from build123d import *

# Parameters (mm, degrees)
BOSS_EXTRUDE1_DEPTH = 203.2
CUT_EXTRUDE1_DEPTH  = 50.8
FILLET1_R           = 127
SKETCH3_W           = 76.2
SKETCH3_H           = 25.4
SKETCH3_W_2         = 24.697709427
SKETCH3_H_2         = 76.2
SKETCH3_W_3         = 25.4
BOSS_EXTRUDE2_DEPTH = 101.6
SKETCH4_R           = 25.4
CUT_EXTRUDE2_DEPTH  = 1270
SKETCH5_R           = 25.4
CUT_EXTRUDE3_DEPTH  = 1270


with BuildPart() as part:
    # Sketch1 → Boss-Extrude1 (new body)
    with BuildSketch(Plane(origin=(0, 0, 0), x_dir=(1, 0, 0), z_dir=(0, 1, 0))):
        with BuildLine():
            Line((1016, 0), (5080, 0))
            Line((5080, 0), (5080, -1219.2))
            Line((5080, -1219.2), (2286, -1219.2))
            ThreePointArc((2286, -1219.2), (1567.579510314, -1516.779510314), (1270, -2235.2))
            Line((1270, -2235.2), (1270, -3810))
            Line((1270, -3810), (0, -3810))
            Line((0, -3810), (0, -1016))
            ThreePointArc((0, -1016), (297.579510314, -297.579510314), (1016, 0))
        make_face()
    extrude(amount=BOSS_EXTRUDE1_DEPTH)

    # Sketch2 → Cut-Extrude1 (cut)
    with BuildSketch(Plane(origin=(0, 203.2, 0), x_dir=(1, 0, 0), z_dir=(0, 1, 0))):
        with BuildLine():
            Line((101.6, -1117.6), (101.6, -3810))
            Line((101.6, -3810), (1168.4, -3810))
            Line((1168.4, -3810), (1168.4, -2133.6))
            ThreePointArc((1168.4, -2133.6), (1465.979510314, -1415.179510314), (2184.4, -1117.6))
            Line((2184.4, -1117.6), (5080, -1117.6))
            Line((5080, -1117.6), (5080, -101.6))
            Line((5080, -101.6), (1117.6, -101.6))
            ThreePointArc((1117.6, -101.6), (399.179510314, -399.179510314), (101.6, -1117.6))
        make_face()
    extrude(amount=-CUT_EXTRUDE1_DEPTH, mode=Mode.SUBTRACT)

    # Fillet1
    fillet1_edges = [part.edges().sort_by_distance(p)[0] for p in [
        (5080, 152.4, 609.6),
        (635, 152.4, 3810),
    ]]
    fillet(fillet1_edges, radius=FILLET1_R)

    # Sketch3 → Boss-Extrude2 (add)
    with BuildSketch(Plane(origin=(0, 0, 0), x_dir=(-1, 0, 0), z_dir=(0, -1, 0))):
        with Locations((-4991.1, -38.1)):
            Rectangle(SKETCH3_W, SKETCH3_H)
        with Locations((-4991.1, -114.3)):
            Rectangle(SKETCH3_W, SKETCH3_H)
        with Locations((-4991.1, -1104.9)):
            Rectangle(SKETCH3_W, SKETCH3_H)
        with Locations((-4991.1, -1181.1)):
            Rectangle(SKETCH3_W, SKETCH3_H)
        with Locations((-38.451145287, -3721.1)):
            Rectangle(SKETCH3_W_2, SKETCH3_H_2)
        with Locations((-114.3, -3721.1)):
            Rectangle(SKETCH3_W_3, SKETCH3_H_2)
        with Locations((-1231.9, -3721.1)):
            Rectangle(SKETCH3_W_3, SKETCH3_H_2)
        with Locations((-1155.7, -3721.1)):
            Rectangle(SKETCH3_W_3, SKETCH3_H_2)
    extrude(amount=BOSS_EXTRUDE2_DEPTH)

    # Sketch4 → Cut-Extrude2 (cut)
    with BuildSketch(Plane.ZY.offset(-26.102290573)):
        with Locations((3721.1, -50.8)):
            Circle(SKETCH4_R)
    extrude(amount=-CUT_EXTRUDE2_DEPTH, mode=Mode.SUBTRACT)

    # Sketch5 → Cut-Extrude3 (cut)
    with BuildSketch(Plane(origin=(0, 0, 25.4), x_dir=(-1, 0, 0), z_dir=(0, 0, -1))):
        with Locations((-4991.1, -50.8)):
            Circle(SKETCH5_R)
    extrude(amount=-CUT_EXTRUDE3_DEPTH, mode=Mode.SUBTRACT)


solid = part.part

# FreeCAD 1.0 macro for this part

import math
import FreeCAD as App
import Part
import Sketcher

V = App.Vector
Q = App.Units.Quantity


def edges_at(feature, points):
    """Names of the edges that pass closest to the given points."""
    edges = feature.Shape.Edges
    near = lambda p: min(range(len(edges)), key=lambda i: edges[i].distToShape(Part.Vertex(*p))[0])
    return sorted({f"Edge{near(p) + 1}" for p in points})


def add_polygon(sketch, points):
    """Adds a closed chain of lines whose ends are joined by coincident constraints."""
    first, n = sketch.GeometryCount, len(points)
    for a, b in zip(points, points[1:] + points[:1]):
        sketch.addGeometry(Part.LineSegment(App.Vector(*a, 0), App.Vector(*b, 0)), False)
    for i in range(n):
        sketch.addConstraint(Sketcher.Constraint("Coincident", first + i, 2, first + (i + 1) % n, 1))

doc = App.newDocument("Part")
params = doc.addObject("Spreadsheet::Sheet", "Params")
for row, (alias, value) in enumerate([
    ("sketch1_radius", "40 in"),
    ("sketch1_width", "160 in"),
    ("sketch1_width2", "50 in"),
    ("sketch1_width3", "110 in"),
    ("sketch1_height", "62 in"),
    ("pad1_length", "8 in"),
    ("sketch2_radius", "40 in"),
    ("sketch2_width", "42 in"),
    ("sketch2_width2", "114 in"),
    ("sketch2_width3", "156 in"),
    ("sketch2_height", "106 in"),
    ("pocket1_length", "2 in"),
    ("fillet_radius", "5 in"),
    ("sketch3_width", "3 in"),
    ("sketch3_width2", "1 in"),
    ("pad2_length", "4 in"),
    ("sketch4_diameter", "2 in"),
    ("pocket2_length", "50 in"),
    ("sketch5_diameter", "2 in"),
    ("pocket3_length", "50 in"),
], start=1):
    params.set(f"A{row}", alias)
    params.set(f"B{row}", "=" + value)
    params.setAlias(f"B{row}", alias)

body = doc.addObject("PartDesign::Body", "Body")

sketch1 = body.newObject("Sketcher::SketchObject", "Sketch")
sketch1.AttachmentSupport = (doc.getObject("XZ_Plane"), [""])
sketch1.MapMode = "FlatFace"
sketch1.addGeometry([
    Part.LineSegment(V(5080, 0, 0), V(1016, 0, 0)),
    Part.ArcOfCircle(Part.Circle(V(1016, 1016, 0), V(0, 0, 1), 1016), math.radians(180), math.radians(270)),
    Part.LineSegment(V(0, 1016, 0), V(0, 3810, 0)),
    Part.LineSegment(V(0, 3810, 0), V(1270, 3810, 0)),
    Part.LineSegment(V(1270, 3810, 0), V(1270, 2235.2, 0)),
    Part.ArcOfCircle(Part.Circle(V(2286, 2235.2, 0), V(0, 0, 1), 1016), math.radians(180), math.radians(270)),
    Part.LineSegment(V(2286, 1219.2, 0), V(5080, 1219.2, 0)),
    Part.LineSegment(V(5080, 1219.2, 0), V(5080, 0, 0)),
], False)
sketch1.addConstraint([
    Sketcher.Constraint("Coincident", 0, 2, 1, 2),
    Sketcher.Constraint("Coincident", 1, 1, 2, 1),
    Sketcher.Constraint("Coincident", 2, 2, 3, 1),
    Sketcher.Constraint("Coincident", 3, 2, 4, 1),
    Sketcher.Constraint("Coincident", 4, 2, 5, 1),
    Sketcher.Constraint("Coincident", 5, 2, 6, 1),
    Sketcher.Constraint("Coincident", 6, 2, 7, 1),
    Sketcher.Constraint("Coincident", 7, 2, 0, 1),
    Sketcher.Constraint("Horizontal", 0),
    Sketcher.Constraint("Vertical", 2),
    Sketcher.Constraint("Horizontal", 3),
    Sketcher.Constraint("Vertical", 4),
    Sketcher.Constraint("Horizontal", 6),
    Sketcher.Constraint("Vertical", 7),
    Sketcher.Constraint("Equal", 1, 5),
    Sketcher.Constraint("PointOnObject", 0, 2, -1),
    Sketcher.Constraint("PointOnObject", 1, 1, -2),
    Sketcher.Constraint("Horizontal", 5, 3, 4, 2),
    Sketcher.Constraint("Vertical", 1, 3, 0, 2),
    Sketcher.Constraint("Equal", 6, 2),
    Sketcher.Constraint("Radius", 1, Q("40 in")),
    Sketcher.Constraint("DistanceX", 0, 2, 0, 1, Q("160 in")),
    Sketcher.Constraint("DistanceX", 3, 1, 3, 2, Q("50 in")),
    Sketcher.Constraint("DistanceX", 6, 1, 6, 2, Q("110 in")),
    Sketcher.Constraint("DistanceY", 4, 2, 4, 1, Q("62 in")),
    Sketcher.Constraint("DistanceY", 7, 2, 7, 1, Q("48 in")),
])
sketch1.setExpression("Constraints[20]", "Params.sketch1_radius")
sketch1.setExpression("Constraints[21]", "Params.sketch1_width")
sketch1.setExpression("Constraints[22]", "Params.sketch1_width2")
sketch1.setExpression("Constraints[23]", "Params.sketch1_width3")
sketch1.setExpression("Constraints[24]", "Params.sketch1_height")
pad1 = body.newObject("PartDesign::Pad", "Pad")
pad1.Profile = sketch1
pad1.setExpression("Length", "Params.pad1_length")
pad1.Reversed = True

sketch2 = body.newObject("Sketcher::SketchObject", "Sketch001")
sketch2.AttachmentSupport = (doc.getObject("XZ_Plane"), [""])
sketch2.MapMode = "FlatFace"
sketch2.AttachmentOffset = App.Placement(V(0, 0, -8 * 25.4), App.Rotation())
sketch2.addGeometry([
    Part.LineSegment(V(101.6, 1117.6, 0), V(101.6, 3810, 0)),
    Part.LineSegment(V(101.6, 3810, 0), V(1168.4, 3810, 0)),
    Part.LineSegment(V(1168.4, 3810, 0), V(1168.4, 2133.6, 0)),
    Part.ArcOfCircle(Part.Circle(V(2184.4, 2133.6, 0), V(0, 0, 1), 1016), math.radians(180), math.radians(270)),
    Part.LineSegment(V(2184.4, 1117.6, 0), V(5080, 1117.6, 0)),
    Part.LineSegment(V(5080, 1117.6, 0), V(5080, 101.6, 0)),
    Part.LineSegment(V(5080, 101.6, 0), V(1117.6, 101.6, 0)),
    Part.ArcOfCircle(Part.Circle(V(1117.6, 1117.6, 0), V(0, 0, 1), 1016), math.radians(180), math.radians(270)),
], False)
sketch2.addConstraint([
    Sketcher.Constraint("Coincident", 0, 2, 1, 1),
    Sketcher.Constraint("Coincident", 1, 2, 2, 1),
    Sketcher.Constraint("Coincident", 2, 2, 3, 1),
    Sketcher.Constraint("Coincident", 3, 2, 4, 1),
    Sketcher.Constraint("Coincident", 4, 2, 5, 1),
    Sketcher.Constraint("Coincident", 5, 2, 6, 1),
    Sketcher.Constraint("Coincident", 6, 2, 7, 2),
    Sketcher.Constraint("Coincident", 7, 1, 0, 1),
    Sketcher.Constraint("Vertical", 0),
    Sketcher.Constraint("Horizontal", 1),
    Sketcher.Constraint("Vertical", 2),
    Sketcher.Constraint("Horizontal", 4),
    Sketcher.Constraint("Vertical", 5),
    Sketcher.Constraint("Horizontal", 6),
    Sketcher.Constraint("Equal", 3, 7),
    Sketcher.Constraint("Horizontal", 3, 3, 2, 2),
    Sketcher.Constraint("Horizontal", 7, 3, 3, 2),
    Sketcher.Constraint("Vertical", 7, 3, 6, 2),
    Sketcher.Constraint("Radius", 3, Q("40 in")),
    Sketcher.Constraint("DistanceX", 1, 1, 1, 2, Q("42 in")),
    Sketcher.Constraint("DistanceX", 4, 1, 4, 2, Q("114 in")),
    Sketcher.Constraint("DistanceX", 6, 2, 6, 1, Q("156 in")),
    Sketcher.Constraint("DistanceY", 0, 1, 0, 2, Q("106 in")),
    Sketcher.Constraint("DistanceY", 2, 2, 2, 1, Q("66 in")),
    Sketcher.Constraint("DistanceX", -1, 1, 3, 3, Q("86 in")),
    Sketcher.Constraint("DistanceY", -1, 1, 3, 3, Q("84 in")),
])
sketch2.setExpression("Constraints[18]", "Params.sketch2_radius")
sketch2.setExpression("Constraints[19]", "Params.sketch2_width")
sketch2.setExpression("Constraints[20]", "Params.sketch2_width2")
sketch2.setExpression("Constraints[21]", "Params.sketch2_width3")
sketch2.setExpression("Constraints[22]", "Params.sketch2_height")
pocket1 = body.newObject("PartDesign::Pocket", "Pocket")
pocket1.Profile = sketch2
pocket1.setExpression("Length", "Params.pocket1_length")
pocket1.Reversed = True
doc.recompute()

fillet = body.newObject("PartDesign::Fillet", "Fillet")
fillet.Base = (pocket1, edges_at(pocket1, [(5080, 152.4, 609.6), (635, 152.4, 3810)]))
fillet.setExpression("Radius", "Params.fillet_radius")

sketch3 = body.newObject("Sketcher::SketchObject", "Sketch002")
sketch3.AttachmentSupport = (doc.getObject("XZ_Plane"), [""])
sketch3.MapMode = "FlatFace"
add_polygon(sketch3, [(5029.2, 25.4), (5029.2, 50.8), (4953, 50.8), (4953, 25.4)])
add_polygon(sketch3, [(5029.2, 101.6), (5029.2, 127), (4953, 127), (4953, 101.6)])
add_polygon(sketch3, [(5029.2, 1092.2), (5029.2, 1117.6), (4953, 1117.6), (4953, 1092.2)])
add_polygon(sketch3, [(5029.2, 1168.4), (5029.2, 1193.8), (4953, 1193.8), (4953, 1168.4)])
add_polygon(sketch3, [(50.8, 3683), (50.8, 3759.2), (26.102291, 3759.2), (26.102291, 3683)])
add_polygon(sketch3, [(127, 3683), (127, 3759.2), (101.6, 3759.2), (101.6, 3683)])
add_polygon(sketch3, [(1244.6, 3683), (1244.6, 3759.2), (1219.2, 3759.2), (1219.2, 3683)])
add_polygon(sketch3, [(1168.4, 3683), (1168.4, 3759.2), (1143, 3759.2), (1143, 3683)])
sketch3.addConstraint([
    Sketcher.Constraint("Vertical", 0),
    Sketcher.Constraint("Horizontal", 1),
    Sketcher.Constraint("Vertical", 2),
    Sketcher.Constraint("Horizontal", 3),
    Sketcher.Constraint("Vertical", 4),
    Sketcher.Constraint("Horizontal", 5),
    Sketcher.Constraint("Vertical", 6),
    Sketcher.Constraint("Horizontal", 7),
    Sketcher.Constraint("Vertical", 8),
    Sketcher.Constraint("Horizontal", 9),
    Sketcher.Constraint("Vertical", 10),
    Sketcher.Constraint("Horizontal", 11),
    Sketcher.Constraint("Vertical", 12),
    Sketcher.Constraint("Horizontal", 13),
    Sketcher.Constraint("Vertical", 14),
    Sketcher.Constraint("Horizontal", 15),
    Sketcher.Constraint("Vertical", 16),
    Sketcher.Constraint("Horizontal", 17),
    Sketcher.Constraint("Vertical", 18),
    Sketcher.Constraint("Horizontal", 19),
    Sketcher.Constraint("Vertical", 20),
    Sketcher.Constraint("Horizontal", 21),
    Sketcher.Constraint("Vertical", 22),
    Sketcher.Constraint("Horizontal", 23),
    Sketcher.Constraint("Vertical", 24),
    Sketcher.Constraint("Horizontal", 25),
    Sketcher.Constraint("Vertical", 26),
    Sketcher.Constraint("Horizontal", 27),
    Sketcher.Constraint("Vertical", 28),
    Sketcher.Constraint("Horizontal", 29),
    Sketcher.Constraint("Vertical", 30),
    Sketcher.Constraint("Horizontal", 31),
    Sketcher.Constraint("Horizontal", 17, 2, 20, 2),
    Sketcher.Constraint("Horizontal", 19, 2, 22, 2),
    Sketcher.Constraint("Horizontal", 21, 2, 24, 2),
    Sketcher.Constraint("Horizontal", 23, 2, 26, 2),
    Sketcher.Constraint("Horizontal", 25, 2, 28, 2),
    Sketcher.Constraint("Horizontal", 27, 2, 30, 2),
    Sketcher.Constraint("Vertical", 3, 2, 4, 2),
    Sketcher.Constraint("Vertical", 2, 2, 5, 2),
    Sketcher.Constraint("Vertical", 7, 2, 8, 2),
    Sketcher.Constraint("Vertical", 6, 2, 9, 2),
    Sketcher.Constraint("Vertical", 11, 2, 12, 2),
    Sketcher.Constraint("Vertical", 10, 2, 13, 2),
    Sketcher.Constraint("Equal", 23, 25),
    Sketcher.Constraint("Equal", 27, 29),
    Sketcher.Constraint("Equal", 31, 0),
    Sketcher.Constraint("Equal", 2, 4),
    Sketcher.Constraint("Equal", 6, 8),
    Sketcher.Constraint("Equal", 10, 12),
    Sketcher.Constraint("Equal", 15, 16),
    Sketcher.Constraint("DistanceX", 1, 2, 1, 1, Q("3 in")),
    Sketcher.Constraint("DistanceX", 21, 2, 21, 1, Q("1 in")),
    Sketcher.Constraint("DistanceX", -1, 1, 0, 2, Q("198 in")),
    Sketcher.Constraint("DistanceY", -1, 1, 0, 2, Q("2 in")),
    Sketcher.Constraint("DistanceY", -1, 1, 4, 2, Q("5 in")),
    Sketcher.Constraint("DistanceY", -1, 1, 8, 2, Q("44 in")),
    Sketcher.Constraint("DistanceY", -1, 1, 12, 2, Q("47 in")),
    Sketcher.Constraint("DistanceX", -1, 1, 16, 2, Q("2 in")),
    Sketcher.Constraint("DistanceY", -1, 1, 16, 2, Q("148 in")),
    Sketcher.Constraint("DistanceX", -1, 1, 20, 2, Q("5 in")),
    Sketcher.Constraint("DistanceX", -1, 1, 24, 2, Q("49 in")),
    Sketcher.Constraint("DistanceX", -1, 1, 28, 2, Q("46 in")),
    Sketcher.Constraint("DistanceX", 17, 2, 17, 1, 24.697709),
])
sketch3.setExpression("Constraints[83]", "Params.sketch3_width")
sketch3.setExpression("Constraints[84]", "Params.sketch3_width2")
pad2 = body.newObject("PartDesign::Pad", "Pad001")
pad2.Profile = sketch3
pad2.setExpression("Length", "Params.pad2_length")

sketch4 = body.newObject("Sketcher::SketchObject", "Sketch003")
sketch4.AttachmentSupport = (doc.getObject("YZ_Plane"), [""])
sketch4.MapMode = "FlatFace"
sketch4.AttachmentOffset = App.Placement(V(0, 0, 26.102291), App.Rotation())
sketch4.addGeometry(Part.Circle(V(-50.8, 3721.1, 0), V(0, 0, 1), 25.4), False)
sketch4.addConstraint([
    Sketcher.Constraint("Diameter", 0, Q("2 in")),
    Sketcher.Constraint("DistanceX", 0, 3, -1, 1, Q("2 in")),
    Sketcher.Constraint("DistanceY", -1, 1, 0, 3, Q("146.5 in")),
])
sketch4.setExpression("Constraints[0]", "Params.sketch4_diameter")
pocket2 = body.newObject("PartDesign::Pocket", "Pocket001")
pocket2.Profile = sketch4
pocket2.setExpression("Length", "Params.pocket2_length")
pocket2.Reversed = True

sketch5 = body.newObject("Sketcher::SketchObject", "Sketch004")
sketch5.AttachmentSupport = (doc.getObject("XY_Plane"), [""])
sketch5.MapMode = "FlatFace"
sketch5.AttachmentOffset = App.Placement(V(0, 0, 1 * 25.4), App.Rotation())
sketch5.addGeometry(Part.Circle(V(4991.1, -50.8, 0), V(0, 0, 1), 25.4), False)
sketch5.addConstraint([
    Sketcher.Constraint("Diameter", 0, Q("2 in")),
    Sketcher.Constraint("DistanceY", 0, 3, -1, 1, Q("2 in")),
    Sketcher.Constraint("DistanceX", -1, 1, 0, 3, Q("196.5 in")),
])
sketch5.setExpression("Constraints[0]", "Params.sketch5_diameter")
pocket3 = body.newObject("PartDesign::Pocket", "Pocket002")
pocket3.Profile = sketch5
pocket3.setExpression("Length", "Params.pocket3_length")
pocket3.Reversed = True

doc.recompute()
